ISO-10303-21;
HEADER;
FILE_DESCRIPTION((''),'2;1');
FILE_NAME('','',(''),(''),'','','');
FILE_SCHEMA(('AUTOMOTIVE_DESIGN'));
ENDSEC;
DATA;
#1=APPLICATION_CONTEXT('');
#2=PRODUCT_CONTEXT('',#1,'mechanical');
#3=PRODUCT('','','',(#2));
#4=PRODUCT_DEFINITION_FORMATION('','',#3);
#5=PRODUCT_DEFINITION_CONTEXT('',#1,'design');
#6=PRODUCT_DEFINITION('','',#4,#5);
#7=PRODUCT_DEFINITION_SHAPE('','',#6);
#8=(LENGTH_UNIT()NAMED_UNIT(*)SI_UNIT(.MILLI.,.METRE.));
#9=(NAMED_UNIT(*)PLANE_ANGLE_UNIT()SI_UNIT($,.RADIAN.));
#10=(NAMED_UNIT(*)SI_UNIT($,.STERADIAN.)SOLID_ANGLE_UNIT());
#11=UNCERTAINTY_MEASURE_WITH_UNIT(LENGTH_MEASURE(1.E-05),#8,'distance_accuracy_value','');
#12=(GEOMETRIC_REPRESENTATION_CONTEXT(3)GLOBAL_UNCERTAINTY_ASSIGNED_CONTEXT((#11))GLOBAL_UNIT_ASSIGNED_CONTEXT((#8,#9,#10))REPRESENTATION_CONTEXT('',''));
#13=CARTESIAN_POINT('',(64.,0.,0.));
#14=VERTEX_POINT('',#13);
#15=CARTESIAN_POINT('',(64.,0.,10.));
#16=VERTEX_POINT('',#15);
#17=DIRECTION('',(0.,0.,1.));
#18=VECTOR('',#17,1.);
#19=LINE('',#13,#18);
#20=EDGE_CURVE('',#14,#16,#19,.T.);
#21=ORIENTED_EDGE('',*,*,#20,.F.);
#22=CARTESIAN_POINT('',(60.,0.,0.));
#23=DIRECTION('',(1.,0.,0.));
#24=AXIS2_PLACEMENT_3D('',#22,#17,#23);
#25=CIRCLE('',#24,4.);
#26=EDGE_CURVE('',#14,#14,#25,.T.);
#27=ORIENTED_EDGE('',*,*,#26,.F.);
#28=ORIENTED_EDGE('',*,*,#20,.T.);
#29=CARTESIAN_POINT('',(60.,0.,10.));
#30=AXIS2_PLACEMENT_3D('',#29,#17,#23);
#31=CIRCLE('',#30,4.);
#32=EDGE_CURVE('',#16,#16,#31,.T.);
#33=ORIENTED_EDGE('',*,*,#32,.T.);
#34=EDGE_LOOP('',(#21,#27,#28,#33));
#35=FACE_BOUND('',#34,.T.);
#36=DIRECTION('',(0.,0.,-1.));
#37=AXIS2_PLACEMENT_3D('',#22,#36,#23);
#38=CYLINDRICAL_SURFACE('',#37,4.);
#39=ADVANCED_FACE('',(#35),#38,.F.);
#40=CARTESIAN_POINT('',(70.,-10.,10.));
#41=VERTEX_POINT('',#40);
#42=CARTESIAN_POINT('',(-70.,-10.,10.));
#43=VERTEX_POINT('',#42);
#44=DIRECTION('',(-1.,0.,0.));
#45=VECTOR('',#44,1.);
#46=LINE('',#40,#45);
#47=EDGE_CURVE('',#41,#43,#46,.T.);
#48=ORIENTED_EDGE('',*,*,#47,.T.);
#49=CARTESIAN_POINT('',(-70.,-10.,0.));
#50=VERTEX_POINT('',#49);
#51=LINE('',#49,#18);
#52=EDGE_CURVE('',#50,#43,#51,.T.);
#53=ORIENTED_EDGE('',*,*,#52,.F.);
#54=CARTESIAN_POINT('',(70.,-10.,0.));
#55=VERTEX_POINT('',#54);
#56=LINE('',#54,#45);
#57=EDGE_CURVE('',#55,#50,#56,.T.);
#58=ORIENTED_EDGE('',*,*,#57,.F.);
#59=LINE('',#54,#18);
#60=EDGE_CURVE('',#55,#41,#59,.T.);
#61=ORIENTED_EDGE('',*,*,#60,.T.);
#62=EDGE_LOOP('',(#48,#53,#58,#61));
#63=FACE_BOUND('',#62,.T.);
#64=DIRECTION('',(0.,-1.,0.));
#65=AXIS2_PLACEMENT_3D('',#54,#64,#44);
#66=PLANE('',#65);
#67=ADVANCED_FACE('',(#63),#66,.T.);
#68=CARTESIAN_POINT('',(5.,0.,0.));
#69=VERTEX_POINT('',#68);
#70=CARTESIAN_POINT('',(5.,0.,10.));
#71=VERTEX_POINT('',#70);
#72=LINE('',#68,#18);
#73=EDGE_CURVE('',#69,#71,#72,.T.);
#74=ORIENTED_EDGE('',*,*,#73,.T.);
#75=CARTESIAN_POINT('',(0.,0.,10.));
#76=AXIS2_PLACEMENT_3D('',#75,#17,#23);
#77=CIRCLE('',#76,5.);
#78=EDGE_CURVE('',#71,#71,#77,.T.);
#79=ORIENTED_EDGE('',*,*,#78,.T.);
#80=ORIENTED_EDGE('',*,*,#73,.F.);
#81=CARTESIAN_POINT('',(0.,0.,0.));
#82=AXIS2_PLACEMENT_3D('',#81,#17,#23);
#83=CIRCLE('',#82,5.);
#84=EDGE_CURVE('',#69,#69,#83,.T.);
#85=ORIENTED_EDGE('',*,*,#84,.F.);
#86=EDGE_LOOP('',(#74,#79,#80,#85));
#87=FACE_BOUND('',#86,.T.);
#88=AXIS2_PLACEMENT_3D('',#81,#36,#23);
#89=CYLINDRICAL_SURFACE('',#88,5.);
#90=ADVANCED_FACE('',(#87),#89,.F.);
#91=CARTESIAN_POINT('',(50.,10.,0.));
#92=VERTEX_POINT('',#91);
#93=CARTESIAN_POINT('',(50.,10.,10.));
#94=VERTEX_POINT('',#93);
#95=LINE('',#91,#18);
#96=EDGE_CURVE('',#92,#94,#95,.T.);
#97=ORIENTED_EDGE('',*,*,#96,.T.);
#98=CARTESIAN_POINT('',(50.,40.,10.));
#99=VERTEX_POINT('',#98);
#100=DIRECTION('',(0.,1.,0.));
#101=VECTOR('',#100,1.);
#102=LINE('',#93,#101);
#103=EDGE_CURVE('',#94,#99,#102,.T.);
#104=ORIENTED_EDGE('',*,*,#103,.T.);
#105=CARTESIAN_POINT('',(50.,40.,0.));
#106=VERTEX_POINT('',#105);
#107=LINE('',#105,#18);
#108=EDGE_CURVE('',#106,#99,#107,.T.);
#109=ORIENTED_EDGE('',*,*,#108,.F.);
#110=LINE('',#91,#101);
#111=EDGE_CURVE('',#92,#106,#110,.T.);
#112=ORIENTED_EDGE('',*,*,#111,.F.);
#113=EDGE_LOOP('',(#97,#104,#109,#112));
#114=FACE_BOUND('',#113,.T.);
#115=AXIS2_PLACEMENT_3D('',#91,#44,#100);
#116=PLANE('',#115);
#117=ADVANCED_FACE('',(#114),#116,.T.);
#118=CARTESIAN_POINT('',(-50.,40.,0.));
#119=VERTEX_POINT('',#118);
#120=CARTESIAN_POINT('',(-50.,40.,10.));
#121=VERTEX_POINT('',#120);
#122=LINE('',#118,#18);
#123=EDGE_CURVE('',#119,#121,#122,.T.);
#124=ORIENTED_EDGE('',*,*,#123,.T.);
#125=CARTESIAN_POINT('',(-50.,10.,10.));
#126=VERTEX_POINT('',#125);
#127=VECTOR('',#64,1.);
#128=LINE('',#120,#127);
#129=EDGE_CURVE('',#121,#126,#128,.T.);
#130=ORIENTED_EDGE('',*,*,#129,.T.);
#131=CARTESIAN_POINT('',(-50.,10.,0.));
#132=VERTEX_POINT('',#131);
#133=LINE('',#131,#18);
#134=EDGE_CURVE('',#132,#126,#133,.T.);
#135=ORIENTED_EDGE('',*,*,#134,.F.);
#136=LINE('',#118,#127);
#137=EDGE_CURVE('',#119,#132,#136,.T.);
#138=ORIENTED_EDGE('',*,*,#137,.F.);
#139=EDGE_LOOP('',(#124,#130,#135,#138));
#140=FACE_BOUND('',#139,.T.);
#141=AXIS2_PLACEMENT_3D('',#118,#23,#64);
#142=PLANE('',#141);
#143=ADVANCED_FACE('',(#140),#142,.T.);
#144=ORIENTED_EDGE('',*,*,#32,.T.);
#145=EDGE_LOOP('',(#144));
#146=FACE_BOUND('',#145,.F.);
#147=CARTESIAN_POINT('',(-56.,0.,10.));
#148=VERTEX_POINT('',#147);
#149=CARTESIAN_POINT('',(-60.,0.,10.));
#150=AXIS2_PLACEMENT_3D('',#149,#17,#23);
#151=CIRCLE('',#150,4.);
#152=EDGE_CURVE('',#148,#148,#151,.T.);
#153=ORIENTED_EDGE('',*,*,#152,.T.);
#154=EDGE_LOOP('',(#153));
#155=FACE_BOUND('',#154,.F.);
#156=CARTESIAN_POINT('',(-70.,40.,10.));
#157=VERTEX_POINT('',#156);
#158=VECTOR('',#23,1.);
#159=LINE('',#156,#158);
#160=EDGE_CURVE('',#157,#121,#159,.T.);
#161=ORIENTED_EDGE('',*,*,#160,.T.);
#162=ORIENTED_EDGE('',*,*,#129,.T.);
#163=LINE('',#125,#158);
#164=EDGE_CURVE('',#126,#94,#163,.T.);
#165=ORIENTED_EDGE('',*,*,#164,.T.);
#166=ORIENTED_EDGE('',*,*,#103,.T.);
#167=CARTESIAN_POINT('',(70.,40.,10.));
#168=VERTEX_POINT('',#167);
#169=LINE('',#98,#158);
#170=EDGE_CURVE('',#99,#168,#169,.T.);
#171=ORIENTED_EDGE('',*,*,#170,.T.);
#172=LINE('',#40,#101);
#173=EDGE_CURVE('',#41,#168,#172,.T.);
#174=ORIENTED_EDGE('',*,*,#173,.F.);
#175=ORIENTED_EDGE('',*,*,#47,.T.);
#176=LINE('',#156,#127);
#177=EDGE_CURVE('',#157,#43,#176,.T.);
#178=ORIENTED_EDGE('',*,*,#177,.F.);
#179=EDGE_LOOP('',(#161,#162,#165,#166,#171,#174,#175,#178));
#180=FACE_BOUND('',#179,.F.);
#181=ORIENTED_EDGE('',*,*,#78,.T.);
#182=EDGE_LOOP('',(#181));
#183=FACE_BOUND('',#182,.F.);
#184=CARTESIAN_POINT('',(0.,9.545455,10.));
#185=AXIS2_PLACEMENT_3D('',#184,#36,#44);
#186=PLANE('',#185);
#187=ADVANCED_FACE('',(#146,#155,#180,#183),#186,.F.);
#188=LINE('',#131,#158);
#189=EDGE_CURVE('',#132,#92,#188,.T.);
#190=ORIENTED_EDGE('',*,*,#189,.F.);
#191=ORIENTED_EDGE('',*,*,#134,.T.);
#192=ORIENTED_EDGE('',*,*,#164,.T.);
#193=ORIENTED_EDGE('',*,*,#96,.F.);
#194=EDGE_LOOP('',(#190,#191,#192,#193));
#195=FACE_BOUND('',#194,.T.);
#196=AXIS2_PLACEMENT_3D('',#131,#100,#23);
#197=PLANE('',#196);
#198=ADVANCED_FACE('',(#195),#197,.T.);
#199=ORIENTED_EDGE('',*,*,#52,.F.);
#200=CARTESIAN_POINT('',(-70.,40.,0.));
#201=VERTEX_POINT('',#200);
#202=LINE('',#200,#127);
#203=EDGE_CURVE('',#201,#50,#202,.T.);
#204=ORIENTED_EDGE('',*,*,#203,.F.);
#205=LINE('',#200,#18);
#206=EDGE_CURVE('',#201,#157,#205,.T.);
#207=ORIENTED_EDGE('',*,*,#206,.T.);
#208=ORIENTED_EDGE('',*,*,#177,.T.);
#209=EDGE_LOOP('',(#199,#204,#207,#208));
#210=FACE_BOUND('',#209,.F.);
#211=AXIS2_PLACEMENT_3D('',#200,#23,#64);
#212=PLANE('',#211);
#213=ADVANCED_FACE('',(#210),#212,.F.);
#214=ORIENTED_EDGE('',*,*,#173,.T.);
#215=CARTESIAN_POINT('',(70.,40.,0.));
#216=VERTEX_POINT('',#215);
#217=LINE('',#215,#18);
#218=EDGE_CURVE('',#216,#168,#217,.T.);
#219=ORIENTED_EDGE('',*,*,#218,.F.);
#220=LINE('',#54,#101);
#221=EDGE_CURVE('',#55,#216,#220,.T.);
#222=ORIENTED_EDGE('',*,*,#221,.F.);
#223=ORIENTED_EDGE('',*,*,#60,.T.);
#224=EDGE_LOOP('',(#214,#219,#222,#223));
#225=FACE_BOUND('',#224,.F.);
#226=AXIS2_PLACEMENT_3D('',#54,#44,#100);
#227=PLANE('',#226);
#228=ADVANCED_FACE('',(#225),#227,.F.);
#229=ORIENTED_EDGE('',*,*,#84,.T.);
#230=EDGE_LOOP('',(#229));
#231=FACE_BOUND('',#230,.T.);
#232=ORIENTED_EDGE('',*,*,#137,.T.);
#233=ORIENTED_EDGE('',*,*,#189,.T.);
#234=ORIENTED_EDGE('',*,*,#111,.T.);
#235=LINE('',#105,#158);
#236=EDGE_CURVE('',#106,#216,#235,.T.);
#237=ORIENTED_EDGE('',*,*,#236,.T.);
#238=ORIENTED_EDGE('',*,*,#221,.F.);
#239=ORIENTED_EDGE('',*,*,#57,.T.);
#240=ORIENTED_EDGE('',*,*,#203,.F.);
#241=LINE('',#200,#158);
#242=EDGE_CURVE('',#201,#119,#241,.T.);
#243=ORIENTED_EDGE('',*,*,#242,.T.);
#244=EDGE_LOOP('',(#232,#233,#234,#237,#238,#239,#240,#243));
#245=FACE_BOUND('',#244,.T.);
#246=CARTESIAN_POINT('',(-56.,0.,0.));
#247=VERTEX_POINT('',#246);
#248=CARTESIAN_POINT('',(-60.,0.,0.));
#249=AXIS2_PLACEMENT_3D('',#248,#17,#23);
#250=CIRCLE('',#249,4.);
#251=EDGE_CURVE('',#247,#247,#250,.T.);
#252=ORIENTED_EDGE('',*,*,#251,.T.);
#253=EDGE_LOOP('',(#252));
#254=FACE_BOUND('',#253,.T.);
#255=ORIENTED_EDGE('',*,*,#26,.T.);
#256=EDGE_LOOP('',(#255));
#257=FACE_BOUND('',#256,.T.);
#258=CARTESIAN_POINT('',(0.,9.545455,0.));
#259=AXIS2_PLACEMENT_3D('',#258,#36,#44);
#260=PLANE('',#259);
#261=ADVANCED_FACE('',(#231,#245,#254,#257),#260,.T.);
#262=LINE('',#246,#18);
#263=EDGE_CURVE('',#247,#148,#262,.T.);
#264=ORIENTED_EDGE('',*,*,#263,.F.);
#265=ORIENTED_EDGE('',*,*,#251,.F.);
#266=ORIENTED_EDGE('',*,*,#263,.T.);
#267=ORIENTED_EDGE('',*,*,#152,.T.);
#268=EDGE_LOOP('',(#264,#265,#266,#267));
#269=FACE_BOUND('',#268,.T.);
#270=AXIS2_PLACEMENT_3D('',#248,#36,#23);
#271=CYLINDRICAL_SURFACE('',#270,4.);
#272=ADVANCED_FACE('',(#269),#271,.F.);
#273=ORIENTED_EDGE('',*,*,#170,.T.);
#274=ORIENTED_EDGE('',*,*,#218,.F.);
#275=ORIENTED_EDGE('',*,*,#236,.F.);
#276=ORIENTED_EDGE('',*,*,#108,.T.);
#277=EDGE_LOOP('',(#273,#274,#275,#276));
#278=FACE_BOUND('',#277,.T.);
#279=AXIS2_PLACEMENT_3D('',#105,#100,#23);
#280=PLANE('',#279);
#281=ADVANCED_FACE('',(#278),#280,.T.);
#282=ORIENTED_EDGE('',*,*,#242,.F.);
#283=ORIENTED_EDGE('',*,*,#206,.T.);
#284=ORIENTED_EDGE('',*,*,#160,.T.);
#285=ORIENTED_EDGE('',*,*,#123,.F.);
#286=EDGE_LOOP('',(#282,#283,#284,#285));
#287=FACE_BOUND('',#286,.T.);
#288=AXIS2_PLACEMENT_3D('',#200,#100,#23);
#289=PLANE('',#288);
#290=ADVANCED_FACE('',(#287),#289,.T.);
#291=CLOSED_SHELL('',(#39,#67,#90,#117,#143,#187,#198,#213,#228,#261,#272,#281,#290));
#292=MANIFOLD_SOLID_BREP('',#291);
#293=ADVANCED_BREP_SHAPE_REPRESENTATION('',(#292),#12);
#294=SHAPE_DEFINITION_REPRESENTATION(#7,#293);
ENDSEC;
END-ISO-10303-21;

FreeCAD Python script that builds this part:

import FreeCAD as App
import Part
import Sketcher

V = App.Vector

doc = App.newDocument("Part")
body = doc.addObject("PartDesign::Body", "Body")

# Sketch on XY plane
sketch1 = body.newObject("Sketcher::SketchObject", "Sketch")
sketch1.AttachmentSupport = (doc.getObject("XY_Plane"), [""])
sketch1.MapMode = "FlatFace"
sketch1.addGeometry(Part.LineSegment(V(50, 10, 0), V(-50, 10, 0)), False)
sketch1.addGeometry(Part.LineSegment(V(-50, 10, 0), V(-50, 40, 0)), False)
sketch1.addGeometry(Part.LineSegment(V(-50, 40, 0), V(-70, 40, 0)), False)
sketch1.addGeometry(Part.LineSegment(V(-70, 40, 0), V(-70, -10, 0)), False)
sketch1.addGeometry(Part.LineSegment(V(-70, -10, 0), V(70, -10, 0)), False)
sketch1.addGeometry(Part.LineSegment(V(70, -10, 0), V(70, 40, 0)), False)
sketch1.addGeometry(Part.LineSegment(V(70, 40, 0), V(50, 40, 0)), False)
sketch1.addGeometry(Part.LineSegment(V(50, 40, 0), V(50, 10, 0)), False)
sketch1.addGeometry(Part.Circle(V(60, 0, 0), V(0, 0, 1), 4), False)
sketch1.addGeometry(Part.Circle(V(0, 0, 0), V(0, 0, 1), 5), False)
sketch1.addGeometry(Part.Circle(V(-60, 0, 0), V(0, 0, 1), 4), False)
sketch1.addConstraint(Sketcher.Constraint("Coincident", 0, 2, 1, 1))
sketch1.addConstraint(Sketcher.Constraint("Coincident", 1, 2, 2, 1))
sketch1.addConstraint(Sketcher.Constraint("Coincident", 2, 2, 3, 1))
sketch1.addConstraint(Sketcher.Constraint("Coincident", 3, 2, 4, 1))
sketch1.addConstraint(Sketcher.Constraint("Coincident", 4, 2, 5, 1))
sketch1.addConstraint(Sketcher.Constraint("Coincident", 5, 2, 6, 1))
sketch1.addConstraint(Sketcher.Constraint("Coincident", 6, 2, 7, 1))
sketch1.addConstraint(Sketcher.Constraint("Coincident", 7, 2, 0, 1))
sketch1.addConstraint(Sketcher.Constraint("Horizontal", 0))
sketch1.addConstraint(Sketcher.Constraint("Vertical", 1))
sketch1.addConstraint(Sketcher.Constraint("Horizontal", 2))
sketch1.addConstraint(Sketcher.Constraint("Vertical", 3))
sketch1.addConstraint(Sketcher.Constraint("Horizontal", 4))
sketch1.addConstraint(Sketcher.Constraint("Vertical", 5))
sketch1.addConstraint(Sketcher.Constraint("Horizontal", 6))
sketch1.addConstraint(Sketcher.Constraint("Vertical", 7))
sketch1.addConstraint(Sketcher.Constraint("Coincident", 9, 3, -1, 1))
sketch1.addConstraint(Sketcher.Constraint("Equal", 8, 10))
sketch1.addConstraint(Sketcher.Constraint("Symmetric", 8, 3, 10, 3, -1, 1))
sketch1.addConstraint(Sketcher.Constraint("Symmetric", 2, 2, 5, 2, -2))
sketch1.addConstraint(Sketcher.Constraint("PointOnObject", 8, 3, -1))
sketch1.addConstraint(Sketcher.Constraint("Equal", 2, 6))
sketch1.addConstraint(Sketcher.Constraint("Diameter", 8, 8.0))
sketch1.addConstraint(Sketcher.Constraint("Diameter", 9, 10.0))
sketch1.addConstraint(Sketcher.Constraint("DistanceX", 0, 2, 0, 1, 100.0))
sketch1.addConstraint(Sketcher.Constraint("DistanceX", 2, 2, 2, 1, 20.0))
sketch1.addConstraint(Sketcher.Constraint("DistanceY", 1, 1, 1, 2, 30.0))
sketch1.addConstraint(Sketcher.Constraint("DistanceY", 3, 2, 3, 1, 50.0))
sketch1.addConstraint(Sketcher.Constraint("DistanceX", -1, 1, 8, 3, 60.0))
sketch1.addConstraint(Sketcher.Constraint("DistanceY", -1, 1, 0, 2, 10.0))
pad1 = body.newObject("PartDesign::Pad", "Pad")
pad1.Profile = sketch1
pad1.Length = 10

doc.recompute()
